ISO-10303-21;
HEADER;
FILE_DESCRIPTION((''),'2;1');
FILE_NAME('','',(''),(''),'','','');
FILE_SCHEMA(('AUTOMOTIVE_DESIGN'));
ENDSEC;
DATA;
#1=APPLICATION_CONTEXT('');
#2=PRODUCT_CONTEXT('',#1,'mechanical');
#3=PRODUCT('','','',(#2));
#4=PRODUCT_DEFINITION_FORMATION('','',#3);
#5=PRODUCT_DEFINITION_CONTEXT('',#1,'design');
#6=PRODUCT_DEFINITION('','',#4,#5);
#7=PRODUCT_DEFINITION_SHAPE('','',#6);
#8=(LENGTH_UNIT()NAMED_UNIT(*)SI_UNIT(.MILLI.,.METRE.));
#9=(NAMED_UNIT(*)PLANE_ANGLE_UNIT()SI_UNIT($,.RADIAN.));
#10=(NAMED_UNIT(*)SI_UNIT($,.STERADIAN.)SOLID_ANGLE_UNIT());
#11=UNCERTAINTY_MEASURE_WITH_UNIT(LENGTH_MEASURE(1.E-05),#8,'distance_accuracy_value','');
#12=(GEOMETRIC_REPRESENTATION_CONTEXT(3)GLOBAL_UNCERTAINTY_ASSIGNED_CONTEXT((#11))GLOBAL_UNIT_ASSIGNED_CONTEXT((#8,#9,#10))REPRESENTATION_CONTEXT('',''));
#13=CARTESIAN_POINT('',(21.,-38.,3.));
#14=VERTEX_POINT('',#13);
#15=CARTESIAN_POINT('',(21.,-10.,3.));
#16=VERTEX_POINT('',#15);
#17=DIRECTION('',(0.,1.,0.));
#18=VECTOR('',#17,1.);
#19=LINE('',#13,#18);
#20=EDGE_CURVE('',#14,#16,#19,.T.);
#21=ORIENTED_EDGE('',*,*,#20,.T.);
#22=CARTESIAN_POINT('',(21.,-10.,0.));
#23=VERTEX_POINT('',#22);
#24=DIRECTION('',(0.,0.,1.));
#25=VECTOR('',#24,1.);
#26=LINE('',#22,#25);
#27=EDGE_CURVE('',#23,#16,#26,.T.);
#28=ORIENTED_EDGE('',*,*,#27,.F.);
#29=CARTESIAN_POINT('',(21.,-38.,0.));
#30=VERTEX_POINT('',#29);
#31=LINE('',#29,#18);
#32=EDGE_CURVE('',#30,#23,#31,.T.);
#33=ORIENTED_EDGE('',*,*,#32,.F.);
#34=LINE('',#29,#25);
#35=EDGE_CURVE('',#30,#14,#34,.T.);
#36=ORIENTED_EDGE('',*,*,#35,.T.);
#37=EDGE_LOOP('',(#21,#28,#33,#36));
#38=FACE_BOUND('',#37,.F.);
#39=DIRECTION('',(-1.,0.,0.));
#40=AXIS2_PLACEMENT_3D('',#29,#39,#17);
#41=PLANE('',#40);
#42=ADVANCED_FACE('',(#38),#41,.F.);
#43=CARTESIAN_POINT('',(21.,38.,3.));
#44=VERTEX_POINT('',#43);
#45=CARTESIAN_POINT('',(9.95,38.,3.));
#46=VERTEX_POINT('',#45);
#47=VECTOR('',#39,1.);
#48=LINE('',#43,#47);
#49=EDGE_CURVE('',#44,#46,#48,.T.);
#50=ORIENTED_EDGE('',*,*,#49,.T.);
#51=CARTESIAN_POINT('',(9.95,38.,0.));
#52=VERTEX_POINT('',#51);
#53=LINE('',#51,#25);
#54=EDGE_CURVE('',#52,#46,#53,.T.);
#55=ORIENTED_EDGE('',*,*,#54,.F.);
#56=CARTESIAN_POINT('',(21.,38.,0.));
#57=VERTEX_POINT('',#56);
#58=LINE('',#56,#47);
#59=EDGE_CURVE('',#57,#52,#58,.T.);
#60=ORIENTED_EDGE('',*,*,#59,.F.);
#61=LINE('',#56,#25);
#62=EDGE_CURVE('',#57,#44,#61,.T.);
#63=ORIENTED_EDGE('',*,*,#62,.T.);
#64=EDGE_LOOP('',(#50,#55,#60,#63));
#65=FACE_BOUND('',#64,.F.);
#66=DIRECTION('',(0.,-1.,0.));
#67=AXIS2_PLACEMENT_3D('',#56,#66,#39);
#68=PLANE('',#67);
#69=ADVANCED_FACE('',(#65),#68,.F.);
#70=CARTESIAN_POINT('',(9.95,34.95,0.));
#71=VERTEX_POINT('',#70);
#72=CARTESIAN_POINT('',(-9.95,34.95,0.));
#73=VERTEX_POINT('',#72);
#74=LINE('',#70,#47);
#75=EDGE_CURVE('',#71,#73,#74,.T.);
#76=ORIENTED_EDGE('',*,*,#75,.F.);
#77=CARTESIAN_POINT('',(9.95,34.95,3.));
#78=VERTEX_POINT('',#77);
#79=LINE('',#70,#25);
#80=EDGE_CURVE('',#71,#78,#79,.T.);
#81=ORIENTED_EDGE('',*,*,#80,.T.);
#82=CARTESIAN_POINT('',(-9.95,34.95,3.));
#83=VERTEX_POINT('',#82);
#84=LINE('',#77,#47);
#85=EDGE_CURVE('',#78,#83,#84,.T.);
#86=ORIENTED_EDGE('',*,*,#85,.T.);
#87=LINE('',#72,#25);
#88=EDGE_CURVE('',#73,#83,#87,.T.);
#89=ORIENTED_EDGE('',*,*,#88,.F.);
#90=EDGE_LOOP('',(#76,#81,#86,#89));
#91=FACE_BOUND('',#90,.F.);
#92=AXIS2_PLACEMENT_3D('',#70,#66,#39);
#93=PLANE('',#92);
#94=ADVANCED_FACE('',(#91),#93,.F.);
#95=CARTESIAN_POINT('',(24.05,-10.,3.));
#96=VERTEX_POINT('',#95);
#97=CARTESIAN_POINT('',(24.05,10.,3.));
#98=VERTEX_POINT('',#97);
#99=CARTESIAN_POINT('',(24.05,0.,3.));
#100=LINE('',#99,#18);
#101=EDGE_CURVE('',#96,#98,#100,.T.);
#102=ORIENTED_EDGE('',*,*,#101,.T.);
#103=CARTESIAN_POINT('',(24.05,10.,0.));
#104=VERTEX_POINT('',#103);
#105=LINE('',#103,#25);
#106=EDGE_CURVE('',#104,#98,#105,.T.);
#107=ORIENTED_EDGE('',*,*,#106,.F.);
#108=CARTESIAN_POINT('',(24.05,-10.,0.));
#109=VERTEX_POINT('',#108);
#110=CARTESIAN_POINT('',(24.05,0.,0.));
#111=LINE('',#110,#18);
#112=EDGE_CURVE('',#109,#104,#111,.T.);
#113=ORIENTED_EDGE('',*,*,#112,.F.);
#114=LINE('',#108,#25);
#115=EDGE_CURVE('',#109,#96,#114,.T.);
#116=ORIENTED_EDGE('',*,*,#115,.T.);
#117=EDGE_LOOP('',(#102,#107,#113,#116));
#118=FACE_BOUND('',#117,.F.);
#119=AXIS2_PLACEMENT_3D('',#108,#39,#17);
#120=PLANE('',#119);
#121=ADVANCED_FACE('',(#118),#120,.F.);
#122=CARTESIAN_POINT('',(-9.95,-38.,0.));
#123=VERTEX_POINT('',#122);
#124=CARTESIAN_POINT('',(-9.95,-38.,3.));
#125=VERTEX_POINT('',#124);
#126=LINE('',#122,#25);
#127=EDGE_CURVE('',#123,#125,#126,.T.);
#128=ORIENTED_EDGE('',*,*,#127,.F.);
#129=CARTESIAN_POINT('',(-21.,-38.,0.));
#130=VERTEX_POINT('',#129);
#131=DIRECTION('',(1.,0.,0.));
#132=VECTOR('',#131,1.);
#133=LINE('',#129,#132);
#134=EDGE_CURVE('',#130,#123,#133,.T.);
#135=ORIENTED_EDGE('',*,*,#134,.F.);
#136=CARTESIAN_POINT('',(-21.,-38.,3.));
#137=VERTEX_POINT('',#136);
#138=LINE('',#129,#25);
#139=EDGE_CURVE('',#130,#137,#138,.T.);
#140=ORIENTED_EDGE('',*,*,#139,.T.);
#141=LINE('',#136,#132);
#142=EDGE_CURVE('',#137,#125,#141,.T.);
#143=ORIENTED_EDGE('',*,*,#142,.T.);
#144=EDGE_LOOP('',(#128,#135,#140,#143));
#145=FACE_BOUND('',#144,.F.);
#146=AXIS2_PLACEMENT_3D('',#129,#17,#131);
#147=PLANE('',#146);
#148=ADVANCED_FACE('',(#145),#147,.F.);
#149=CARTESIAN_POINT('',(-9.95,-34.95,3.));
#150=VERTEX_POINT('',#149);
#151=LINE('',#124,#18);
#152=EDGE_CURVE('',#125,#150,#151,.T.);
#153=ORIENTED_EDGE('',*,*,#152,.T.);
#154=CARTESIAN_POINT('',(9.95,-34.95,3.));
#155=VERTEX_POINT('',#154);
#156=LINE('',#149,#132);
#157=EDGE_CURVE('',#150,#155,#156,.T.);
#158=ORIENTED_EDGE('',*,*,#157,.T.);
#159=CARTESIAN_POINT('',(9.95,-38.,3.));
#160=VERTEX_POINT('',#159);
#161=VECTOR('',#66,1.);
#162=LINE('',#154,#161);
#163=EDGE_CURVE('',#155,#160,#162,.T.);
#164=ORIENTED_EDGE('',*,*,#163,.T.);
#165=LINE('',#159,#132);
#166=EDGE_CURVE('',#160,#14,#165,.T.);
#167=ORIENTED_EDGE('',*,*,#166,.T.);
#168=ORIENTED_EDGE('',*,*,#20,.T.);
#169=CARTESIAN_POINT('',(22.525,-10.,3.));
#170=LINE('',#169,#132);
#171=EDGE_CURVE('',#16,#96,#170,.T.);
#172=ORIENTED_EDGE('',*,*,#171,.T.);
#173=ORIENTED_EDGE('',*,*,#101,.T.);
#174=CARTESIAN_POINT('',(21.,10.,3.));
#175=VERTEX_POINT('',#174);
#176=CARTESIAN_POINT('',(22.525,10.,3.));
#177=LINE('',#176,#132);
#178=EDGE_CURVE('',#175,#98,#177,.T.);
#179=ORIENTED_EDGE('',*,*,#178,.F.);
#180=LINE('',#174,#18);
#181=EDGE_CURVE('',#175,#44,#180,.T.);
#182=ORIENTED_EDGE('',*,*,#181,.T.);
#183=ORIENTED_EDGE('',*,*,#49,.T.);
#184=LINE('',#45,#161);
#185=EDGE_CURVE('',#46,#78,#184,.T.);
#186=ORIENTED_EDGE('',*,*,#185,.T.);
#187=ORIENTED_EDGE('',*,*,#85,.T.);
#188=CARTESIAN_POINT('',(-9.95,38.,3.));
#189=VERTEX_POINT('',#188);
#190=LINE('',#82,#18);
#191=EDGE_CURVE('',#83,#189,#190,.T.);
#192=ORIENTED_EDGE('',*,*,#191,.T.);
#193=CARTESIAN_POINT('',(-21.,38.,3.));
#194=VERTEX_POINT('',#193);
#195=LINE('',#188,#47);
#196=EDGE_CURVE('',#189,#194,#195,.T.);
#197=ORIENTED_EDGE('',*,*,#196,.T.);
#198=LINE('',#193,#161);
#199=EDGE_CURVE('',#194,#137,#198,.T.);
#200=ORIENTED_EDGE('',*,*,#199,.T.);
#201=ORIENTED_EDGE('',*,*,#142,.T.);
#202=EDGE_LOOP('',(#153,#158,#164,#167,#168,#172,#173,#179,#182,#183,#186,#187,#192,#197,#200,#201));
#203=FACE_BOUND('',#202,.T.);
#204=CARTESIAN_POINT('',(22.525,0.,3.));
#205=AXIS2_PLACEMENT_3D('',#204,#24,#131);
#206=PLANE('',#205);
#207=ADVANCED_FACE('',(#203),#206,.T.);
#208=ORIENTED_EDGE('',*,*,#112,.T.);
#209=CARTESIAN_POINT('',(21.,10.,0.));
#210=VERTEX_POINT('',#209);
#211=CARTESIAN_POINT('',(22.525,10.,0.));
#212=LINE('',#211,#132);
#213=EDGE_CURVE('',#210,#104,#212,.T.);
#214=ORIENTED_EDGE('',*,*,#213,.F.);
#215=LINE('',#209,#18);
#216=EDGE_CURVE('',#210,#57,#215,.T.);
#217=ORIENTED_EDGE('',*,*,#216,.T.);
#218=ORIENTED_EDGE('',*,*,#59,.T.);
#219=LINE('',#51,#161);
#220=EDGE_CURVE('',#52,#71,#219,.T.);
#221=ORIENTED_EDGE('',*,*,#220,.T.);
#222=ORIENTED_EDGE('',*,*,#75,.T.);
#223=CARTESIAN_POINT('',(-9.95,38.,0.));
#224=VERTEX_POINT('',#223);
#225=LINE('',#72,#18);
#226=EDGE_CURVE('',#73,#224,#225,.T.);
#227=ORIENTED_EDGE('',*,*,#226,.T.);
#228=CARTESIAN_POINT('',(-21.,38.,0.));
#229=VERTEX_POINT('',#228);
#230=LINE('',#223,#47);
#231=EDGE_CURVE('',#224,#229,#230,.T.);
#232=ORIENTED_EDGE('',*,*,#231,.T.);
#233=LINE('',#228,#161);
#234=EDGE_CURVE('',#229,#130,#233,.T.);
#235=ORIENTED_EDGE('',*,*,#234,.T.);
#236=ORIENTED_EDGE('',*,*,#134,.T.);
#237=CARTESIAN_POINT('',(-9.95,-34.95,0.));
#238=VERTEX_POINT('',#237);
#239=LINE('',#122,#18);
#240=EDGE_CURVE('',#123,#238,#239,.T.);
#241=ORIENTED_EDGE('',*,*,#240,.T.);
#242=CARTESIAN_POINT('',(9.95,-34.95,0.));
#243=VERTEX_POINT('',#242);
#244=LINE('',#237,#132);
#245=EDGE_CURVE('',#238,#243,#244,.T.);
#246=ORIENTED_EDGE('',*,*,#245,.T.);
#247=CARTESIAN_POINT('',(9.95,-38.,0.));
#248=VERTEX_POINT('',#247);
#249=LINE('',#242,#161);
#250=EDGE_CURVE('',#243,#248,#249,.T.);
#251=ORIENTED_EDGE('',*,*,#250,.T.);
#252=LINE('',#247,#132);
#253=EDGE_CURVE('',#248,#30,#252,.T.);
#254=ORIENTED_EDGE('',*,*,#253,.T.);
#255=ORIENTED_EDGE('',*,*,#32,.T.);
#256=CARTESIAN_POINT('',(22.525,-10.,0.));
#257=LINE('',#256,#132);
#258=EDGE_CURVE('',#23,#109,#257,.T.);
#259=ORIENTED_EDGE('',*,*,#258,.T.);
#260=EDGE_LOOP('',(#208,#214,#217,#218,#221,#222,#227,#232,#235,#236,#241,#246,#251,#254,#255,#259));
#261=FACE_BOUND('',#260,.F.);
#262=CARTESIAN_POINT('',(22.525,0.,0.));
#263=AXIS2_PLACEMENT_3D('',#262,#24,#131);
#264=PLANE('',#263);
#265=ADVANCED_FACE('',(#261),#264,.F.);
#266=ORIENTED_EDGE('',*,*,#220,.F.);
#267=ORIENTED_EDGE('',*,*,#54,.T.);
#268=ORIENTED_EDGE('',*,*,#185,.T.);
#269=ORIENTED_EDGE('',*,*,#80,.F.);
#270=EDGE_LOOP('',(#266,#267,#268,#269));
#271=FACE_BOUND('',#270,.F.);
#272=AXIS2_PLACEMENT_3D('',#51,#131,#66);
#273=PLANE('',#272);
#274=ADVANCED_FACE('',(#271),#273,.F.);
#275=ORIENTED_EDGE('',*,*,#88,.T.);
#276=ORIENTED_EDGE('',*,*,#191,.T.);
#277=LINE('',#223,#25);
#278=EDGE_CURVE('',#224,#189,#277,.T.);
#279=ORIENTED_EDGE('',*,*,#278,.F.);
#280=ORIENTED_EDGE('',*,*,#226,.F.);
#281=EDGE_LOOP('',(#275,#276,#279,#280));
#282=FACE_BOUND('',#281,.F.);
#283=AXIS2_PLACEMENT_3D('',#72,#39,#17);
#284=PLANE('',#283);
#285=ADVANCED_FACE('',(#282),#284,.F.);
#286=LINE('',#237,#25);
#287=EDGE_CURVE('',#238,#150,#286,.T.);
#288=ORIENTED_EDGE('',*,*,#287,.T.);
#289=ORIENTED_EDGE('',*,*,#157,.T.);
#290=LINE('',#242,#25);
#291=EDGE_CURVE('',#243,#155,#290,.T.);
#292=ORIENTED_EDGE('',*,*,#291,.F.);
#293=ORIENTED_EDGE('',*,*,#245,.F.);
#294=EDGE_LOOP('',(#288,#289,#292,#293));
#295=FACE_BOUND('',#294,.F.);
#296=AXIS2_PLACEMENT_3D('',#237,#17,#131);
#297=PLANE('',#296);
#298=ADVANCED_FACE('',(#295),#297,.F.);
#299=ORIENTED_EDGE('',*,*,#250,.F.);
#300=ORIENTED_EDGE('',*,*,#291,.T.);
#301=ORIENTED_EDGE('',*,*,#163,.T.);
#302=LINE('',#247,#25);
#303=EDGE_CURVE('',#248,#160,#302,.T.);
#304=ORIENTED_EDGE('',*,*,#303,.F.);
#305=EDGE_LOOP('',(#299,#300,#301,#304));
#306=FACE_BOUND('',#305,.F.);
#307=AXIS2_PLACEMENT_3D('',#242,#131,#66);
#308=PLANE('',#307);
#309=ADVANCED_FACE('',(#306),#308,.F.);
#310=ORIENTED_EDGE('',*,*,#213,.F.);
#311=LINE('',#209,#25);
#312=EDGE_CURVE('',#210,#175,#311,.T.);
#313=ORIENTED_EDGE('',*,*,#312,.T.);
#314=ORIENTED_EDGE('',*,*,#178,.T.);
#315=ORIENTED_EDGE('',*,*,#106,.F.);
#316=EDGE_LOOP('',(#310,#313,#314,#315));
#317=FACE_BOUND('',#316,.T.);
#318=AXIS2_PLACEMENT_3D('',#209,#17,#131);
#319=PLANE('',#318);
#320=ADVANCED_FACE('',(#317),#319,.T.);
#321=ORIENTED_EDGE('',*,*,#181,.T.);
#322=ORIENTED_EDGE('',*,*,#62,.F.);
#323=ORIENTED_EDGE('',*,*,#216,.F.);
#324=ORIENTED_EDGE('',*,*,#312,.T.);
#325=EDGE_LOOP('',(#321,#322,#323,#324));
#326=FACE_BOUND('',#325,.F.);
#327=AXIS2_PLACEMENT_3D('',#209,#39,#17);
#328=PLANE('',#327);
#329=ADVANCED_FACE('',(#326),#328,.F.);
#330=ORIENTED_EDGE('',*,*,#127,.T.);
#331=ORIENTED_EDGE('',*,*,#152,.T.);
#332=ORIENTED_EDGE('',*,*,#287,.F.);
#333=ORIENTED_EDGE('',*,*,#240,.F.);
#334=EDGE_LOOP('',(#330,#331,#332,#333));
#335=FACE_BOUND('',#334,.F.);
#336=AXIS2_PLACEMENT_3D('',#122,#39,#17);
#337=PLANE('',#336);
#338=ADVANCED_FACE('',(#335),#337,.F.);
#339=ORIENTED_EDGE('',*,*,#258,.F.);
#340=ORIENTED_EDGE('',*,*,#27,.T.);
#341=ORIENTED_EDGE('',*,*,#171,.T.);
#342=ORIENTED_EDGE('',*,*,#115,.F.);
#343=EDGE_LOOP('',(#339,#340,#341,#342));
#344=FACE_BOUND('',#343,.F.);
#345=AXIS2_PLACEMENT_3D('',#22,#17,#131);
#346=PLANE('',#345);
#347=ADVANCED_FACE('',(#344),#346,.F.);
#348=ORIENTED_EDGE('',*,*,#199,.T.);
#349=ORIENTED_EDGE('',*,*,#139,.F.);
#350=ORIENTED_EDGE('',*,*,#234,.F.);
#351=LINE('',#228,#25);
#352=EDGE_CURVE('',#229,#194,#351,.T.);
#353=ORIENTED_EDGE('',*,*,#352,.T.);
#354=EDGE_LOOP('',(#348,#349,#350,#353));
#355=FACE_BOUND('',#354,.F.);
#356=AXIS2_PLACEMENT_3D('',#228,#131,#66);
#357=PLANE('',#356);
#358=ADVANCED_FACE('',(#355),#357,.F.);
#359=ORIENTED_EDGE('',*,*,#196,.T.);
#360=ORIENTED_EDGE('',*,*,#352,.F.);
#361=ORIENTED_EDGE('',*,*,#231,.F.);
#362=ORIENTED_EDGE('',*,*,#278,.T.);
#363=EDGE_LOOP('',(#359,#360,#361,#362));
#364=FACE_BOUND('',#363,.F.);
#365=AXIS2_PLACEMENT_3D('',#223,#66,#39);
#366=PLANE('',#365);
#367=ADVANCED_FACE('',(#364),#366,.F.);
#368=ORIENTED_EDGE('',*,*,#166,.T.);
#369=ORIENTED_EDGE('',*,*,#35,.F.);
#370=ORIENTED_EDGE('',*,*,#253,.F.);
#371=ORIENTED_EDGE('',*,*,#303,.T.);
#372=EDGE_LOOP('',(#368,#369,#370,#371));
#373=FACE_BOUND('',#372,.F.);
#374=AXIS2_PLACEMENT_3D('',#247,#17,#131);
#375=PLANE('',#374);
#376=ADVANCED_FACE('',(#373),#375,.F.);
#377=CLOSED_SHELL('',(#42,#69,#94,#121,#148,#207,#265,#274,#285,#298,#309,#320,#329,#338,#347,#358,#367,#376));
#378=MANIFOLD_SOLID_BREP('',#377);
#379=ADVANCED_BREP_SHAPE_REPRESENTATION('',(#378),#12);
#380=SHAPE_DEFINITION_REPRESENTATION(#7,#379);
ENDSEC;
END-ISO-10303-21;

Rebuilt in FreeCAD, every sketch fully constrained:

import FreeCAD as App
import Part
import Sketcher

V = App.Vector
Q = App.Units.Quantity


def add_polygon(sketch, points):
    """Adds a closed chain of lines whose ends are joined by coincident constraints."""
    first, n = sketch.GeometryCount, len(points)
    for a, b in zip(points, points[1:] + points[:1]):
        sketch.addGeometry(Part.LineSegment(App.Vector(*a, 0), App.Vector(*b, 0)), False)
    for i in range(n):
        sketch.addConstraint(Sketcher.Constraint("Coincident", first + i, 2, first + (i + 1) % n, 1))

doc = App.newDocument("Part")
body = doc.addObject("PartDesign::Body", "Body")

# Sketch on XY plane
sketch1 = body.newObject("Sketcher::SketchObject", "Sketch")
sketch1.AttachmentSupport = (doc.getObject("XY_Plane"), [""])
sketch1.MapMode = "FlatFace"
add_polygon(sketch1, [(21, -10), (24.05, -10), (24.05, 10), (21, 10), (21, 38), (9.95, 38), (9.95, 34.95), (-9.95, 34.95), (-9.95, 38), (-21, 38), (-21, -38), (-9.95, -38), (-9.95, -34.95), (9.95, -34.95), (9.95, -38), (21, -38)])  # lines 0-15
sketch1.addConstraint([
    Sketcher.Constraint("Horizontal", 0),
    Sketcher.Constraint("Vertical", 1),
    Sketcher.Constraint("Horizontal", 2),
    Sketcher.Constraint("Vertical", 3),
    Sketcher.Constraint("Horizontal", 4),
    Sketcher.Constraint("Vertical", 5),
    Sketcher.Constraint("Horizontal", 6),
    Sketcher.Constraint("Vertical", 7),
    Sketcher.Constraint("Horizontal", 8),
    Sketcher.Constraint("Vertical", 9),
    Sketcher.Constraint("Horizontal", 10),
    Sketcher.Constraint("Vertical", 11),
    Sketcher.Constraint("Horizontal", 12),
    Sketcher.Constraint("Vertical", 13),
    Sketcher.Constraint("Horizontal", 14),
    Sketcher.Constraint("Vertical", 15),
    Sketcher.Constraint("Symmetric", 3, 2, 9, 2, -1, 1),
    Sketcher.Constraint("Symmetric", 5, 2, 11, 2, -1, 1),
    Sketcher.Constraint("Symmetric", 7, 2, 13, 2, -1, 1),
    Sketcher.Constraint("Symmetric", 4, 2, 7, 2, -2),
    Sketcher.Constraint("Symmetric", 2, 2, 15, 2, -1),
    Sketcher.Constraint("Equal", 2, 5),
    Sketcher.Constraint("DistanceY", 1, 1, 1, 2, Q("20 mm")),
    Sketcher.Constraint("DistanceY", 3, 1, 3, 2, Q("28 mm")),
    Sketcher.Constraint("DistanceX", 6, 2, 6, 1, Q("19.9 mm")),
    Sketcher.Constraint("DistanceX", -1, 1, 2, 2, Q("21 mm")),
    Sketcher.Constraint("DistanceX", 6, 2, 1, 2, Q("34 mm")),
])
pad1 = body.newObject("PartDesign::Pad", "Pad")
pad1.Profile = sketch1
pad1.Length = 3

doc.recompute()
